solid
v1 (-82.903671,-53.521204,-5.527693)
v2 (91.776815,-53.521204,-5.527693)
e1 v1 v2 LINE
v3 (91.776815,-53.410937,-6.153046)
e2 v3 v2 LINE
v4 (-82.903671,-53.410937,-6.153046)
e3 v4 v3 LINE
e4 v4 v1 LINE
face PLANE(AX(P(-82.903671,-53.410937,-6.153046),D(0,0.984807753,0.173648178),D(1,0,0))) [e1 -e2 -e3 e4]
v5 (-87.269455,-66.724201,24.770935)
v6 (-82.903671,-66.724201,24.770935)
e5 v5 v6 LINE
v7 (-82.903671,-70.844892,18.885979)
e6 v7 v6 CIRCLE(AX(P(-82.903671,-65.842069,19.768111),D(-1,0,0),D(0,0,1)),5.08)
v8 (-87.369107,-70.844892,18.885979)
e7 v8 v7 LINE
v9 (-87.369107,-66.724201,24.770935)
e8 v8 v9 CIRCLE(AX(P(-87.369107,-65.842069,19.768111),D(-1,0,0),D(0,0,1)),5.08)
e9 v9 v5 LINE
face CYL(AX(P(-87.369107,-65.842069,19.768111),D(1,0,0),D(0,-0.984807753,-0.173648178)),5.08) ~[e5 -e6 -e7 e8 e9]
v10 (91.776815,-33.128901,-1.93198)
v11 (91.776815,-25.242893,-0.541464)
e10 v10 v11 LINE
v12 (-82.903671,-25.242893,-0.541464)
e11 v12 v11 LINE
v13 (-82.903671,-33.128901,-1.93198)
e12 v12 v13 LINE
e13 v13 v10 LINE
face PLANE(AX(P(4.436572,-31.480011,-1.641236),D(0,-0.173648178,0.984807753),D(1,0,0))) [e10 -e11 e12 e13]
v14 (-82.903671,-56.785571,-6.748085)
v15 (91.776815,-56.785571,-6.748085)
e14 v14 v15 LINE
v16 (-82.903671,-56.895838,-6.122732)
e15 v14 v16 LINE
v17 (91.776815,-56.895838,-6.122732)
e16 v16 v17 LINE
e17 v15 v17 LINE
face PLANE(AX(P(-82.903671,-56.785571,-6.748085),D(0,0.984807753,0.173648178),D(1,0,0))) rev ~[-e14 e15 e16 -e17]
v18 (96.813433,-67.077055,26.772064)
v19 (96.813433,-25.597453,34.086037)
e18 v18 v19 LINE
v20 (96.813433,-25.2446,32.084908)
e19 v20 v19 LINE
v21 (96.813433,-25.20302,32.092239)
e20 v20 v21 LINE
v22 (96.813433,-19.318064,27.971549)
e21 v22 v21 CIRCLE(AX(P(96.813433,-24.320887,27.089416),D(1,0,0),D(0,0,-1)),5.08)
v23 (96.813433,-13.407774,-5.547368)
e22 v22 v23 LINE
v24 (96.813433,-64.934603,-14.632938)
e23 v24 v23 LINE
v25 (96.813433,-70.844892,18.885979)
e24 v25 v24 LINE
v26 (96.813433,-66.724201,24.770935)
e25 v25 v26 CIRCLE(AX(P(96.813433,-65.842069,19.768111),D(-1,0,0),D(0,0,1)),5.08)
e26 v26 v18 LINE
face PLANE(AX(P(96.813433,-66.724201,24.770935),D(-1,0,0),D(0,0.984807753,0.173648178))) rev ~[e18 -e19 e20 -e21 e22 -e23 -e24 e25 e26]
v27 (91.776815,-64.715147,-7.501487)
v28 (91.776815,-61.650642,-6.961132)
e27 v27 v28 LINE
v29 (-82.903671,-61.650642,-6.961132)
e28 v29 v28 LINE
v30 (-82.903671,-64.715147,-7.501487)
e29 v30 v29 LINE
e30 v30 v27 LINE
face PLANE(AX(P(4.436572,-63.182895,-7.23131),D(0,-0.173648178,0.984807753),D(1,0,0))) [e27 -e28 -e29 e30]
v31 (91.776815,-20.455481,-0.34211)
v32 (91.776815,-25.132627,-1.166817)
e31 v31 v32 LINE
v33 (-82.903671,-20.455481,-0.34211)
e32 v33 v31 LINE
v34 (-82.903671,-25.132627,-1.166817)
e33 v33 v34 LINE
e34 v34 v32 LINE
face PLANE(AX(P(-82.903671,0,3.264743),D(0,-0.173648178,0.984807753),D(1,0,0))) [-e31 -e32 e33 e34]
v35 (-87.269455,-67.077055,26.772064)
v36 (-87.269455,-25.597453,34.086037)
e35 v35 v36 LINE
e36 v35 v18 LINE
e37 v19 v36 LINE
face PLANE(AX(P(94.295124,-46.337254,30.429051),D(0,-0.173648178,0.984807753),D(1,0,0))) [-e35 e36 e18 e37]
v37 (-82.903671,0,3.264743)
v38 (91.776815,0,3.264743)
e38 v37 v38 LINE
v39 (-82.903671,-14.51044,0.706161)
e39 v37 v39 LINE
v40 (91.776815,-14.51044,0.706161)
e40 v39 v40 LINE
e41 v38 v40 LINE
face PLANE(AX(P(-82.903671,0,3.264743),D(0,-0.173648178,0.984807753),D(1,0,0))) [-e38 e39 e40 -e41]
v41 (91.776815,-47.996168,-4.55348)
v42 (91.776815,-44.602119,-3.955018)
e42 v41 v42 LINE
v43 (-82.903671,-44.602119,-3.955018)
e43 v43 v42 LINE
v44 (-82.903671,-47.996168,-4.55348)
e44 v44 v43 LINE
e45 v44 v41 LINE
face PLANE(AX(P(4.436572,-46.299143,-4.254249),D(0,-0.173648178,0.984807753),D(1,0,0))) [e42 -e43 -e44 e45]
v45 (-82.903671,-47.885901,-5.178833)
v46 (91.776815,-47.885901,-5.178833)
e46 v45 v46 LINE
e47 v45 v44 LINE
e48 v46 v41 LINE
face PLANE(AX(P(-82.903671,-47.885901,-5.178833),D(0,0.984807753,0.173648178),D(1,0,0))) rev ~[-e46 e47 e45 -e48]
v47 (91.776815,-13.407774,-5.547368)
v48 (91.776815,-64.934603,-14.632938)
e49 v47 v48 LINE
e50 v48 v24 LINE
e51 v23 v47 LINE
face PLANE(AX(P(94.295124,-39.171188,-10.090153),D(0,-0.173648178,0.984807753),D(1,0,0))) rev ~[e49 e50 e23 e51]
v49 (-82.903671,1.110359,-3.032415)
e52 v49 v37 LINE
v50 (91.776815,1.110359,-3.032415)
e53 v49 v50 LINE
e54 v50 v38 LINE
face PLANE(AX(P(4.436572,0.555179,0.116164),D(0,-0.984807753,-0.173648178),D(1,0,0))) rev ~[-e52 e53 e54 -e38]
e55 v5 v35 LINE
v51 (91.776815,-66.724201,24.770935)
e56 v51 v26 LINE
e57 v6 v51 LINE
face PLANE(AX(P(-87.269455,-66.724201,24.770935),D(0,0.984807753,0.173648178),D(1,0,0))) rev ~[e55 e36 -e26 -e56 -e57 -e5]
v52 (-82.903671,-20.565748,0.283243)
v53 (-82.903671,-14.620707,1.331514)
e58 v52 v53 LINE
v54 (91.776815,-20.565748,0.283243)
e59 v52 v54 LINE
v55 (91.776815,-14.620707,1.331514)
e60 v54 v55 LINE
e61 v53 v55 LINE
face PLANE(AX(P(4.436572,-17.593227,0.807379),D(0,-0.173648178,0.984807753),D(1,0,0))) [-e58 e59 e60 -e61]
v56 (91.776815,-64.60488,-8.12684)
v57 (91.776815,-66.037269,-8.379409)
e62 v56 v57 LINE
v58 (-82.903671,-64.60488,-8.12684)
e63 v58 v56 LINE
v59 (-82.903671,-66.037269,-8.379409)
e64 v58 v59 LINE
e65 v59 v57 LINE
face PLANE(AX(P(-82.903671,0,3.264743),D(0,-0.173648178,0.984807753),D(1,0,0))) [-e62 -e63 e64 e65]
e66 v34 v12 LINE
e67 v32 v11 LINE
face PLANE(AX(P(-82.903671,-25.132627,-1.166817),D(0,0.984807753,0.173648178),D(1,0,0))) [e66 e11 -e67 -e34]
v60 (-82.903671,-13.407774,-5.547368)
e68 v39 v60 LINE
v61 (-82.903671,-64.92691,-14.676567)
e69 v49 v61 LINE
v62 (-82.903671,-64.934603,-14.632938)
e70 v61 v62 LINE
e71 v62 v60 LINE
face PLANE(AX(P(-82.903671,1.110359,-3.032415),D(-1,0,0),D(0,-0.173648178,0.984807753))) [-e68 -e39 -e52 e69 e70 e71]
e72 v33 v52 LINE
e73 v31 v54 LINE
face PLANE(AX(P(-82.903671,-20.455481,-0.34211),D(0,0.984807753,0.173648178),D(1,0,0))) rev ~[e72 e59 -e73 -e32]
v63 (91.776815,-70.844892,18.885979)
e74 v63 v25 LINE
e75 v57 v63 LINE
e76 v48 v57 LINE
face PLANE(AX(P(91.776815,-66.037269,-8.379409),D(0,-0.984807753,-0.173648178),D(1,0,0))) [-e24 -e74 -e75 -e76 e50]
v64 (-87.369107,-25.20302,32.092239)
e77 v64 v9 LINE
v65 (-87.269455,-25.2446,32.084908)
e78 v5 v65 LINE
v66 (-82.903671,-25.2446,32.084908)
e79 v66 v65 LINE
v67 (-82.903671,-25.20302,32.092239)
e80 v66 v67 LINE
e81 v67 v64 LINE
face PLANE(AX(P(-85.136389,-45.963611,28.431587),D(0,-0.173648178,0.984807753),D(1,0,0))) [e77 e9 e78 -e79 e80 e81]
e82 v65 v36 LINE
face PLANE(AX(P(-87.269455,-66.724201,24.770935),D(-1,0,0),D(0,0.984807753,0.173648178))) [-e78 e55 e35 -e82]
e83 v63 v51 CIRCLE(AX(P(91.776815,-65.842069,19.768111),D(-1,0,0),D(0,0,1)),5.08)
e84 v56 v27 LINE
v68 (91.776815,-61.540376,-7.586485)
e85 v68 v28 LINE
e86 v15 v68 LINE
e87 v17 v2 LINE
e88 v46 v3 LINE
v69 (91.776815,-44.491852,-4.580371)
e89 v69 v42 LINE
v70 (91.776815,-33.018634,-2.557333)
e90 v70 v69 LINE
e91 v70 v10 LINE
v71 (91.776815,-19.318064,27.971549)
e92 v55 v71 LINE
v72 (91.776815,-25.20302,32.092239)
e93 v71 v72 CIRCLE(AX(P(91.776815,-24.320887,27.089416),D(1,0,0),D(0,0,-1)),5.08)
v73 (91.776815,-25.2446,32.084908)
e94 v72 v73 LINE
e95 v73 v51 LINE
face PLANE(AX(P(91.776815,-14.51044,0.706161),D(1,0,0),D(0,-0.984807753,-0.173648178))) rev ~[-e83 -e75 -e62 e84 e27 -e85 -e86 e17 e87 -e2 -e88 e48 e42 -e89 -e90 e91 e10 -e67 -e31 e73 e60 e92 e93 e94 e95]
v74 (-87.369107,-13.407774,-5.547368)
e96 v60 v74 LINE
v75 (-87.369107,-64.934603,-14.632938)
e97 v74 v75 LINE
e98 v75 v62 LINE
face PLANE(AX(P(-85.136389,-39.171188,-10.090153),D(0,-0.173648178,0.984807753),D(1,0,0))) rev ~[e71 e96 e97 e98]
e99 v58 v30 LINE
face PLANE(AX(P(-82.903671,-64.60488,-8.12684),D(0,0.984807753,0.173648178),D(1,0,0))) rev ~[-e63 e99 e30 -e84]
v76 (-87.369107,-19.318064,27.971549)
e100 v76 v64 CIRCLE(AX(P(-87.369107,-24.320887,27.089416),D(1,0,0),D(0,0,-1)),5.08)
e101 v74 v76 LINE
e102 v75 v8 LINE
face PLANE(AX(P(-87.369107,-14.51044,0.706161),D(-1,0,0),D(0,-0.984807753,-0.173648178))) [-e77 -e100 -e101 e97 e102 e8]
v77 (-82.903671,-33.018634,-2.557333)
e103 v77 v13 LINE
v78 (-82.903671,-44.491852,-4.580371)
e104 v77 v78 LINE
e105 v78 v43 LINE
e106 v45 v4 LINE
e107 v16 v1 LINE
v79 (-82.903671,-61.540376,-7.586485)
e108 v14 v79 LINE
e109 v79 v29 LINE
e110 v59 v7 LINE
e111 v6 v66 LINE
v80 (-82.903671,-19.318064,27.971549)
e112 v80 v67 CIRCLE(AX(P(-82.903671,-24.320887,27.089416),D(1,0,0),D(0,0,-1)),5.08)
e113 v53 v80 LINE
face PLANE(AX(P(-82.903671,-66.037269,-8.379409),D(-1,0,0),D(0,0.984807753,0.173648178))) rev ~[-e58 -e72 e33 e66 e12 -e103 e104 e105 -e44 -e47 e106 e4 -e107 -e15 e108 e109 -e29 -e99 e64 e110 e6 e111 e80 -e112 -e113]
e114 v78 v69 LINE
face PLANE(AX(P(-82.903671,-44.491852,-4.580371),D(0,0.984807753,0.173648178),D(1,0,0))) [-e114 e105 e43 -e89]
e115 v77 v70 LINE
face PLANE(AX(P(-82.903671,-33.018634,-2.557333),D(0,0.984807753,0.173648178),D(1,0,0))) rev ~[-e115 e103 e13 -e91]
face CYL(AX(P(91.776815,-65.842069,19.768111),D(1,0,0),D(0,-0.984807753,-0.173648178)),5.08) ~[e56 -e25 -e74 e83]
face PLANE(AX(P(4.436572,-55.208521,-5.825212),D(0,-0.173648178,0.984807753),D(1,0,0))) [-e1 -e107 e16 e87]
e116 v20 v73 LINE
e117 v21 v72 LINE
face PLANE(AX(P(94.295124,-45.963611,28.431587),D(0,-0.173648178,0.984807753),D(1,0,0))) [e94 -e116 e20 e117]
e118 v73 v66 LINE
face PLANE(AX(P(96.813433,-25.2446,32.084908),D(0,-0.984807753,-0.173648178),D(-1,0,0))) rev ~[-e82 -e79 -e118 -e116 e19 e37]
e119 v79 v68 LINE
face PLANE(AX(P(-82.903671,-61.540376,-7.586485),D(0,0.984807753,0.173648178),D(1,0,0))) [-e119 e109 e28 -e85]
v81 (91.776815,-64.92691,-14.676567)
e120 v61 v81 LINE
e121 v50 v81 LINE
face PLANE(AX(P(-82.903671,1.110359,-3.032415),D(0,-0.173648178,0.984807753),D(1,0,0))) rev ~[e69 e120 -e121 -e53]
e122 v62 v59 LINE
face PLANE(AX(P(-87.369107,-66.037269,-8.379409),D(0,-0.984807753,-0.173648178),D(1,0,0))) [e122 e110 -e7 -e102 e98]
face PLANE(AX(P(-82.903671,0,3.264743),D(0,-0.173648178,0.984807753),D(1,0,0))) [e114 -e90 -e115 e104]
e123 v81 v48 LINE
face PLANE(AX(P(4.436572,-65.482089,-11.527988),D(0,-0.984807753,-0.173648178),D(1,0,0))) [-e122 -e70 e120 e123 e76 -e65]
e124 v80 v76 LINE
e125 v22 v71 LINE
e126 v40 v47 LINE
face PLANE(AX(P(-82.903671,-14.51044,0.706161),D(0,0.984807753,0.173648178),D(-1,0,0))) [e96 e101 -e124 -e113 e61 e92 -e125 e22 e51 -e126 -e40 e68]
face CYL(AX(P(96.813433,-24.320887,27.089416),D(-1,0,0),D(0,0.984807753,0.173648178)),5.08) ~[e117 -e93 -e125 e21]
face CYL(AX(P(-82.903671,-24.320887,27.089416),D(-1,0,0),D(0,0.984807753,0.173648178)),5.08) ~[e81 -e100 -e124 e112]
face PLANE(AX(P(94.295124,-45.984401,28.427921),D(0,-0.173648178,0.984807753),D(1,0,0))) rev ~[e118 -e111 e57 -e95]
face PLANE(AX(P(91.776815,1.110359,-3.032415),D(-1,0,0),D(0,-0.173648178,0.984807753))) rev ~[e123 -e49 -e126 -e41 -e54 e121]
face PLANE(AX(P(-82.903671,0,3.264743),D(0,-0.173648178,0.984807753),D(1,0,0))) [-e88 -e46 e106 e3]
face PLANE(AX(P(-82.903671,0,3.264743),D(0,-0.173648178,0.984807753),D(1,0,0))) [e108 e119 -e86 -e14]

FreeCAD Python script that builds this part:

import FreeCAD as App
import Part
import Sketcher
from FreeCAD import Vector
Q = App.Units.Quantity


def edges_at(feature, points):
    """Names of the edges that pass closest to the given points."""
    edges = feature.Shape.Edges
    near = lambda p: min(range(len(edges)), key=lambda i: edges[i].distToShape(Part.Vertex(*p))[0])
    return sorted({f"Edge{near(p) + 1}" for p in points})


def add_polygon(sketch, points):
    """Adds a closed chain of lines whose ends are joined by coincident constraints."""
    first, n = sketch.GeometryCount, len(points)
    for a, b in zip(points, points[1:] + points[:1]):
        sketch.addGeometry(Part.LineSegment(App.Vector(*a, 0), App.Vector(*b, 0)), False)
    for i in range(n):
        sketch.addConstraint(Sketcher.Constraint("Coincident", first + i, 2, first + (i + 1) % n, 1))

doc = App.newDocument("Part")
body = doc.addObject("PartDesign::Body", "Body")

# Sketch on XZ plane
sketch1 = body.newObject("Sketcher::SketchObject", "Sketch")
sketch1.AttachmentSupport = (doc.getObject("XZ_Plane"), [""])
sketch1.MapMode = "FlatFace"
add_polygon(sketch1, [(-83, 3), (-83, -3), (92, -3), (92, 3)])  # lines 0-3
sketch1.addConstraint([
    Sketcher.Constraint("Vertical", 0),
    Sketcher.Constraint("Horizontal", 1),
    Sketcher.Constraint("Vertical", 2),
    Sketcher.Constraint("Horizontal", 3),
    Sketcher.Constraint("DistanceY", 0, 2, 0, 1, Q("6.394302 mm")),
    Sketcher.Constraint("DistanceX", 1, 1, 1, 2, Q("174.680486 mm")),
    Sketcher.Constraint("DistanceX", 0, 2, -1, 1, Q("82.903671 mm")),
    Sketcher.Constraint("DistanceY", 0, 2, -1, 1, Q("3.129558 mm")),
])
pad1 = body.newObject("PartDesign::Pad", "Pad")
pad1.Profile = sketch1
pad1.Length = Q("2.64 in")
body2 = doc.addObject("PartDesign::Body", "Body001")
doc.recompute()

body.Placement = App.Placement(Vector(0, 0.566917, 0.049599), App.Rotation(Vector(1, 0, 0), 10))
boolean = body2.newObject("PartDesign::Boolean", "Boolean")
boolean.Type = "Fuse"
boolean.addObjects([body])

# Sketch on an angled plane
sketch2 = body2.newObject("Sketcher::SketchObject", "Sketch001")
sketch2.Placement = App.Placement(Vector(0, -0.558304, 3.166299), App.Rotation(Vector(1, 0, 0), Vector(0, 0.984807753, 0.173648178), Vector(0, -0.173648178, 0.984807753), "ZXY"))
add_polygon(sketch2, [(-82.9, -14.2), (-82.9, -20.2), (91.8, -20.2), (91.8, -14.2)])  # lines 0-3
add_polygon(sketch2, [(-82.9, -33), (91.8, -33), (91.8, -25), (-82.9, -25)])  # lines 4-7
add_polygon(sketch2, [(-82.9, -44.6), (-82.9, -48.1), (91.8, -48.1), (91.8, -44.6)])  # lines 8-11
add_polygon(sketch2, [(-82.9, -53.7), (-82.9, -57.1), (91.8, -57.1), (91.8, -53.7)])  # lines 12-15
add_polygon(sketch2, [(-82.9, -61.9), (-82.9, -65), (91.8, -65), (91.8, -61.9)])  # lines 16-19
sketch2.addConstraint([
    Sketcher.Constraint("Vertical", 0),
    Sketcher.Constraint("Horizontal", 1),
    Sketcher.Constraint("Vertical", 2),
    Sketcher.Constraint("Horizontal", 3),
    Sketcher.Constraint("Horizontal", 4),
    Sketcher.Constraint("Vertical", 5),
    Sketcher.Constraint("Horizontal", 6),
    Sketcher.Constraint("Vertical", 7),
    Sketcher.Constraint("Vertical", 8),
    Sketcher.Constraint("Horizontal", 9),
    Sketcher.Constraint("Vertical", 10),
    Sketcher.Constraint("Horizontal", 11),
    Sketcher.Constraint("Vertical", 12),
    Sketcher.Constraint("Horizontal", 13),
    Sketcher.Constraint("Vertical", 14),
    Sketcher.Constraint("Horizontal", 15),
    Sketcher.Constraint("Vertical", 16),
    Sketcher.Constraint("Horizontal", 17),
    Sketcher.Constraint("Vertical", 18),
    Sketcher.Constraint("Horizontal", 19),
    Sketcher.Constraint("Vertical", 2, 2, 4, 2),
    Sketcher.Constraint("Vertical", 3, 2, 6, 2),
    Sketcher.Constraint("Vertical", 7, 2, 8, 2),
    Sketcher.Constraint("Vertical", 5, 2, 9, 2),
    Sketcher.Constraint("Vertical", 11, 2, 12, 2),
    Sketcher.Constraint("Vertical", 10, 2, 13, 2),
    Sketcher.Constraint("Vertical", 15, 2, 16, 2),
    Sketcher.Constraint("Vertical", 14, 2, 17, 2),
    Sketcher.Constraint("DistanceY", 16, 2, 16, 1, Q("3.11178 mm")),
    Sketcher.Constraint("DistanceY", 8, 2, -1, 1, Q("48.057701 mm")),
    Sketcher.Constraint("DistanceY", 16, 2, -1, 1, Q("65.034598 mm")),
    Sketcher.Constraint("DistanceY", 5, 2, 1, 2, Q("4.749298 mm")),
    Sketcher.Constraint("DistanceX", 1, 1, 1, 2, Q("174.680486 mm")),
    Sketcher.Constraint("DistanceY", 0, 2, 0, 1, Q("6.036753 mm")),
    Sketcher.Constraint("DistanceY", 5, 1, 5, 2, Q("8.007662 mm")),
    Sketcher.Constraint("DistanceY", 8, 2, 8, 1, Q("3.446408 mm")),
    Sketcher.Constraint("DistanceY", 12, 2, 12, 1, Q("3.426693 mm")),
    Sketcher.Constraint("DistanceX", 0, 2, -1, 1, Q("82.903671 mm")),
    Sketcher.Constraint("DistanceY", 2, 2, -1, 1, Q("14.16737 mm")),
    Sketcher.Constraint("DistanceY", 14, 2, -1, 1, Q("53.66797 mm")),
])
pad2 = body2.newObject("PartDesign::Pad", "Pad001")
pad2.Profile = sketch2
pad2.Length = Q("0.025 in")

# Sketch on an angled plane
sketch3 = body2.newObject("Sketcher::SketchObject", "Sketch002")
sketch3.Placement = App.Placement(Vector(0, -0.558304, 3.166299), App.Rotation(Vector(1, 0, 0), Vector(0, 0.984807753, 0.173648178), Vector(0, -0.173648178, 0.984807753), "ZXY"))
add_polygon(sketch3, [(-82.9, -66.5), (-82.9, -14.2), (-87.4, -14.2), (-87.4, -66.5)])  # lines 0-3
add_polygon(sketch3, [(91.8, -66.5), (96.8, -66.5), (96.8, -14.2), (91.8, -14.2)])  # lines 4-7
sketch3.addConstraint([
    Sketcher.Constraint("Vertical", 0),
    Sketcher.Constraint("Horizontal", 1),
    Sketcher.Constraint("Vertical", 2),
    Sketcher.Constraint("Horizontal", 3),
    Sketcher.Constraint("Horizontal", 4),
    Sketcher.Constraint("Vertical", 5),
    Sketcher.Constraint("Horizontal", 6),
    Sketcher.Constraint("Vertical", 7),
    Sketcher.Constraint("Horizontal", 3, 2, 4, 2),
    Sketcher.Constraint("Horizontal", 1, 2, 5, 2),
    Sketcher.Constraint("DistanceX", 1, 2, 1, 1, Q("4.465436 mm")),
    Sketcher.Constraint("DistanceX", 4, 1, 4, 2, Q("5.036617 mm")),
    Sketcher.Constraint("DistanceY", 0, 1, 0, 2, Q("52.321713 mm")),
    Sketcher.Constraint("DistanceX", 0, 2, -1, 1, Q("82.903671 mm")),
    Sketcher.Constraint("DistanceY", 0, 2, -1, 1, Q("14.16737 mm")),
    Sketcher.Constraint("DistanceX", 2, 2, 4, 2, Q("184.18254 mm")),
])
pad3 = body2.newObject("PartDesign::Pad", "Pad002")
pad3.Profile = sketch3
pad3.Type = "TwoLengths"
pad3.Length = Q("1.29 in")
pad3.Length2 = Q("0.25 in")
doc.recompute()

fillet = body2.newObject("PartDesign::Fillet", "Fillet")
fillet.Base = (pad3, edges_at(pad3, [
    (94.295, -20.2, 32.974),
    (-85.136, -20.2, 32.974),
    (-85.136, -71.727, 23.889),
    (94.295, -71.727, 23.889),
]))
fillet.Radius = Q("0.2 in")

# Sketch on an angled plane
sketch4 = body2.newObject("Sketcher::SketchObject", "Sketch003")
sketch4.Placement = App.Placement(Vector(0, -6.24806, 35.43451), App.Rotation(Vector(1, 0, 0), Vector(0, 0.984807753, 0.173648178), Vector(0, -0.173648178, 0.984807753), "ZXY"))
add_polygon(sketch4, [(97, -61), (97, -19), (-87, -19), (-87, -61)])  # lines 0-3
sketch4.addConstraint([
    Sketcher.Constraint("Vertical", 0),
    Sketcher.Constraint("Horizontal", 1),
    Sketcher.Constraint("Vertical", 2),
    Sketcher.Constraint("Horizontal", 3),
    Sketcher.Constraint("DistanceX", 1, 2, 1, 1, Q("184.082888 mm")),
    Sketcher.Constraint("DistanceY", 0, 1, 0, 2, Q("42.119491 mm")),
    Sketcher.Constraint("DistanceX", -1, 1, 0, 2, Q("96.813433 mm")),
    Sketcher.Constraint("DistanceY", 0, 2, -1, 1, Q("19.289592 mm")),
])
pad4 = body2.newObject("PartDesign::Pad", "Pad003")
pad4.Profile = sketch4
pad4.Length = Q("0.08 in")

doc.recompute()
